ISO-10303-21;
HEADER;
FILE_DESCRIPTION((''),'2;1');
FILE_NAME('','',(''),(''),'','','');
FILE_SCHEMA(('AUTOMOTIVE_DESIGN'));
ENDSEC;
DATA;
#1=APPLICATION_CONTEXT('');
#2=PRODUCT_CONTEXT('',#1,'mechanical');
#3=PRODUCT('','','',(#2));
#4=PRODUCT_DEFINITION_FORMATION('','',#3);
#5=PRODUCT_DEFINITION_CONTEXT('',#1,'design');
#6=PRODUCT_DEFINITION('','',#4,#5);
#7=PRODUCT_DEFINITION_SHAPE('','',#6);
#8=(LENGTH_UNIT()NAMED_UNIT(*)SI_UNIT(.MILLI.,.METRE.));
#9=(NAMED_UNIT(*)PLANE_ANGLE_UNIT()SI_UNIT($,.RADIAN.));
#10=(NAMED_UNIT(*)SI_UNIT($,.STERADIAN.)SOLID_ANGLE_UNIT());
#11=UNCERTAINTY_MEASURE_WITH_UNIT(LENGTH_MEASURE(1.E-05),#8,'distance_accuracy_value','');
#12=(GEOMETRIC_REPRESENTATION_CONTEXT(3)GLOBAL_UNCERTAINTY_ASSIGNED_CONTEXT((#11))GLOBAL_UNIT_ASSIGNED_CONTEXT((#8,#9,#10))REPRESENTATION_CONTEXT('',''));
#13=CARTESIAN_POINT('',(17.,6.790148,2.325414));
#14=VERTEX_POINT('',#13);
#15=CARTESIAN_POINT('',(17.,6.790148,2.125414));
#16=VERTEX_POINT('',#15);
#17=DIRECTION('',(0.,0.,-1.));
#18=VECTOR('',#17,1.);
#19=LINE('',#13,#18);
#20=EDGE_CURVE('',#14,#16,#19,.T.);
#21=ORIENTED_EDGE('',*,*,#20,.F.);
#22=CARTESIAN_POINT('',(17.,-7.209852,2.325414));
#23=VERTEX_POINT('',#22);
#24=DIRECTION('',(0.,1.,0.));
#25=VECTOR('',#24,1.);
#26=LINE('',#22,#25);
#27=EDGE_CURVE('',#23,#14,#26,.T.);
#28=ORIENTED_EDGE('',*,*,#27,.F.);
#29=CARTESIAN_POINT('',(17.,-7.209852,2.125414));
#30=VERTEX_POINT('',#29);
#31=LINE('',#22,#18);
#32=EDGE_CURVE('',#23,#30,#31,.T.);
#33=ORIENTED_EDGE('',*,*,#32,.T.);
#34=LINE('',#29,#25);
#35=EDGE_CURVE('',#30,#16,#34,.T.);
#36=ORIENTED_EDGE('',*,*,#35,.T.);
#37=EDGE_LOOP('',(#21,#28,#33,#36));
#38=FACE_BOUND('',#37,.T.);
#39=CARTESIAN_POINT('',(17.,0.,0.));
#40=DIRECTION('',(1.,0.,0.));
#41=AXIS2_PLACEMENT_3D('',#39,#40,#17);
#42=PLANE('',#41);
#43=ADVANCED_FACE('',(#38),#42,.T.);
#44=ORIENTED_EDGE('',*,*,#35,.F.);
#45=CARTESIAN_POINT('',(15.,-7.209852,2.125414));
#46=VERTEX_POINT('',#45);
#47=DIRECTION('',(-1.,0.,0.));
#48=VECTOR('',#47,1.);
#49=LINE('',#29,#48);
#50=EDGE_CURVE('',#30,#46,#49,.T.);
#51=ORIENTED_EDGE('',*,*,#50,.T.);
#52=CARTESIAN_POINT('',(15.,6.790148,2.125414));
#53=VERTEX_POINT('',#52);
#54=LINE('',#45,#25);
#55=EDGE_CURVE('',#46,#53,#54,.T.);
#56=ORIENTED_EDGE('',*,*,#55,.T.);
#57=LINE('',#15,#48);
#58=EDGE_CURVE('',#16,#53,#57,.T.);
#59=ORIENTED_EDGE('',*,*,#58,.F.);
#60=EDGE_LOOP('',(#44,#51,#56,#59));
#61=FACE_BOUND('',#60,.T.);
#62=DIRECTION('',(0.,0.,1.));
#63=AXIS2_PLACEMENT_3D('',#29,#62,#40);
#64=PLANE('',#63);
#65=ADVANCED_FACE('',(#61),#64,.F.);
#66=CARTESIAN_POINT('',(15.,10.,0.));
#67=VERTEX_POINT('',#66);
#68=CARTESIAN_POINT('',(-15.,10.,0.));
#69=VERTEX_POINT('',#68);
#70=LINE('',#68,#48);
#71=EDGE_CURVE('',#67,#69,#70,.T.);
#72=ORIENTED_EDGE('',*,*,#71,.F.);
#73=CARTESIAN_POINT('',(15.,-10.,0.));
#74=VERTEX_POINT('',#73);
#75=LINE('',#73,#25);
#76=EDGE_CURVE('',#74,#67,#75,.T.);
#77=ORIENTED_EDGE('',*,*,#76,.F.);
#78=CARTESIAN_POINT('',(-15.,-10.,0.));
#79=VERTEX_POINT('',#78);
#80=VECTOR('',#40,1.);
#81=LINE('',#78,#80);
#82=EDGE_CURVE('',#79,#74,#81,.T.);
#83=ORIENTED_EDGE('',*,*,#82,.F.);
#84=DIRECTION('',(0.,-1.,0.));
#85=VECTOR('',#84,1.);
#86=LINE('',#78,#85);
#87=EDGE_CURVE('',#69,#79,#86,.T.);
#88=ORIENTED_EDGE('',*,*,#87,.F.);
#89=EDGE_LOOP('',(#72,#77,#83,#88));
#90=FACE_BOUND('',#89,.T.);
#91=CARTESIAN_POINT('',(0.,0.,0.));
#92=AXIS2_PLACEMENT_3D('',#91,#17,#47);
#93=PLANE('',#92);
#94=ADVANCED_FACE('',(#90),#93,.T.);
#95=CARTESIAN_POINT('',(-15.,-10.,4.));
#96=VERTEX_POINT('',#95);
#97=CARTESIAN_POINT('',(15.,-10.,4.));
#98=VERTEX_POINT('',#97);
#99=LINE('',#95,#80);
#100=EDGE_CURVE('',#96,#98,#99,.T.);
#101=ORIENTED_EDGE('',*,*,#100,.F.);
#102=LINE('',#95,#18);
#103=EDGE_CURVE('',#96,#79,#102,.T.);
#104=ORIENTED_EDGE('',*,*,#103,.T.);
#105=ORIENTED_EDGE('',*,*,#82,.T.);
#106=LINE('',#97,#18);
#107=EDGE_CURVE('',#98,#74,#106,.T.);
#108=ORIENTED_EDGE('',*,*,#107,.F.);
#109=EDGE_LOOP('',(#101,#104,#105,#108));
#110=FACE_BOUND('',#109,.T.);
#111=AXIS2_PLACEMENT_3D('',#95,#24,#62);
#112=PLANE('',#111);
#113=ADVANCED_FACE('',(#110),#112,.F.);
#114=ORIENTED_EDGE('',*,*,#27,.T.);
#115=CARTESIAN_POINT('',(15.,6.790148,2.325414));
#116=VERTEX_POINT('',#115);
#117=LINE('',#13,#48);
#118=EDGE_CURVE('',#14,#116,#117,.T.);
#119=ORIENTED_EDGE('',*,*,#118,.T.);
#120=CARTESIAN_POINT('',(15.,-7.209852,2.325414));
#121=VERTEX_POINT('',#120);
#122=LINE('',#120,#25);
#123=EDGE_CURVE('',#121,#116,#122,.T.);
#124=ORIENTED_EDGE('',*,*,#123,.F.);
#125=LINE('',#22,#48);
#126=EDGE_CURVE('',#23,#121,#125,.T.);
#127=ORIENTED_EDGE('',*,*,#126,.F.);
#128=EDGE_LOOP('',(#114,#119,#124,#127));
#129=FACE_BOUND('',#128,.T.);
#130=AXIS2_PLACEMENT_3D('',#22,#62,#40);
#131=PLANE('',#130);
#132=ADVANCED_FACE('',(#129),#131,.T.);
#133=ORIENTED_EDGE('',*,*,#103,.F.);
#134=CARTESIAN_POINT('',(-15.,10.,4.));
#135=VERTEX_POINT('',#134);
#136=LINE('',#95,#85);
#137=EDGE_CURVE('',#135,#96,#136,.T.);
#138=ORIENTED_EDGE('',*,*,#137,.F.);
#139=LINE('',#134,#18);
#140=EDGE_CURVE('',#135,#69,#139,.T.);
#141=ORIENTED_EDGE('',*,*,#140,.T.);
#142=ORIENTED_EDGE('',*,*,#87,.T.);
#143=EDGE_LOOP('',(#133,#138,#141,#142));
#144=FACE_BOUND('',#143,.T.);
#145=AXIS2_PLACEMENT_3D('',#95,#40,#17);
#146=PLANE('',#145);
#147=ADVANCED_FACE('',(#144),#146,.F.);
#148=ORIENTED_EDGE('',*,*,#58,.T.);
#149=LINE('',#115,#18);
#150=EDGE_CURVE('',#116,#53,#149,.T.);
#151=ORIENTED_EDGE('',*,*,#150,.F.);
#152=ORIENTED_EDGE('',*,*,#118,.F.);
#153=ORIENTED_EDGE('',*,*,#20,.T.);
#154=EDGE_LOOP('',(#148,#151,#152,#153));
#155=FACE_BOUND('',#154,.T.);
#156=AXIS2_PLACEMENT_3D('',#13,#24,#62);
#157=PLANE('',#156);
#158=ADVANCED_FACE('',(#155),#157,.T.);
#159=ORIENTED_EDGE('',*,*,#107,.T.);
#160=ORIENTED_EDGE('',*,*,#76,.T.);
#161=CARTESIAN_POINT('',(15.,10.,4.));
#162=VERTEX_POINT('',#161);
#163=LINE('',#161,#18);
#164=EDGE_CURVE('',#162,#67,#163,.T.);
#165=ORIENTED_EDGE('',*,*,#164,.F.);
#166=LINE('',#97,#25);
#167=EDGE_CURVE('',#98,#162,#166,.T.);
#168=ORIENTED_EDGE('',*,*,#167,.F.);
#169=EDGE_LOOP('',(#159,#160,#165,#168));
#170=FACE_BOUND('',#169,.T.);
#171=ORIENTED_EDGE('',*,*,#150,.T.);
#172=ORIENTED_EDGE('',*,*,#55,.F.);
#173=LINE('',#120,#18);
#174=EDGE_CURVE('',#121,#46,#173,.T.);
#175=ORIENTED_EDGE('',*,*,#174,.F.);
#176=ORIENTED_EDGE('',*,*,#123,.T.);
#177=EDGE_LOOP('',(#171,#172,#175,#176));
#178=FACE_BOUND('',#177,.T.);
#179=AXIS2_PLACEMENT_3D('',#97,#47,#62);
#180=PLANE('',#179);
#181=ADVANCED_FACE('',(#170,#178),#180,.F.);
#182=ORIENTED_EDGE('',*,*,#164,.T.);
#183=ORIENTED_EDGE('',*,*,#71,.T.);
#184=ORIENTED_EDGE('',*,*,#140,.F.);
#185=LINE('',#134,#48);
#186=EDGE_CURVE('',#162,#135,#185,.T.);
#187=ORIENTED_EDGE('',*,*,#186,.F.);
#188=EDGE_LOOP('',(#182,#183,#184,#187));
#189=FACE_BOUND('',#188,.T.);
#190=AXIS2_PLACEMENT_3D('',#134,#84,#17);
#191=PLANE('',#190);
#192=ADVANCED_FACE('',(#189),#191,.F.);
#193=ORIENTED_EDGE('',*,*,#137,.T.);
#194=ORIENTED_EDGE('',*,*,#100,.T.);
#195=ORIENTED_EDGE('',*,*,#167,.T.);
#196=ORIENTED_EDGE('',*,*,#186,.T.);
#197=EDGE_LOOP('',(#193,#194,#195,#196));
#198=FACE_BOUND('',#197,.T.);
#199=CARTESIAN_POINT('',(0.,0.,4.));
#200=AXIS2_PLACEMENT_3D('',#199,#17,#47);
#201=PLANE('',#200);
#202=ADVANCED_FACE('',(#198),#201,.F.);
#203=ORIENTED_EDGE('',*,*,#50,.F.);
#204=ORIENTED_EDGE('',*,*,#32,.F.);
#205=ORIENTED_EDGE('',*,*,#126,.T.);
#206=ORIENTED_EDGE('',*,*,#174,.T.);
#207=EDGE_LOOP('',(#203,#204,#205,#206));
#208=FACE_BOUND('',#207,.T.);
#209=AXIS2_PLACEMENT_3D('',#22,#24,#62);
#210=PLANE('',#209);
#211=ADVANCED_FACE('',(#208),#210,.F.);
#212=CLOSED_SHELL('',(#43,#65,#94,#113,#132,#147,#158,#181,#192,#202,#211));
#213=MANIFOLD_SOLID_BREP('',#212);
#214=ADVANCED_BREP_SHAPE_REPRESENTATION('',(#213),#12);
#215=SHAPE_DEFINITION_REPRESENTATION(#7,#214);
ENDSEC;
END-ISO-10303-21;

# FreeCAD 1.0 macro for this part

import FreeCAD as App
import Part
import Sketcher

V = App.Vector


def add_polygon(sketch, points):
    """Adds a closed chain of lines whose ends are joined by coincident constraints."""
    first, n = sketch.GeometryCount, len(points)
    for a, b in zip(points, points[1:] + points[:1]):
        sketch.addGeometry(Part.LineSegment(App.Vector(*a, 0), App.Vector(*b, 0)), False)
    for i in range(n):
        sketch.addConstraint(Sketcher.Constraint("Coincident", first + i, 2, first + (i + 1) % n, 1))

doc = App.newDocument("Part")
body = doc.addObject("PartDesign::Body", "Body")

# Sketch on XY plane
sketch1 = body.newObject("Sketcher::SketchObject", "Sketch")
sketch1.AttachmentSupport = (doc.getObject("XY_Plane"), [""])
sketch1.MapMode = "FlatFace"
add_polygon(sketch1, [(-15, 10), (-15, -10), (15, -10), (15, 10)])  # lines 0-3
sketch1.addConstraint([
    Sketcher.Constraint("Vertical", 0),
    Sketcher.Constraint("Horizontal", 1),
    Sketcher.Constraint("Vertical", 2),
    Sketcher.Constraint("Horizontal", 3),
    Sketcher.Constraint("Symmetric", 0, 2, 2, 2, -1, 1),
    Sketcher.Constraint("DistanceX", 1, 1, 1, 2, 30.0),
    Sketcher.Constraint("DistanceY", 0, 2, 0, 1, 20.0),
])
pad1 = body.newObject("PartDesign::Pad", "Pad")
pad1.Profile = sketch1
pad1.Length = 4

# Sketch on YZ plane
sketch2 = body.newObject("Sketcher::SketchObject", "Sketch001")
sketch2.AttachmentSupport = (doc.getObject("YZ_Plane"), [""])
sketch2.MapMode = "FlatFace"
sketch2.AttachmentOffset = App.Placement(V(0, 0, 15), App.Rotation())
add_polygon(sketch2, [(6.79, 2.33), (-7.21, 2.33), (-7.21, 2.13), (6.79, 2.13)])  # lines 0-3
sketch2.addConstraint([
    Sketcher.Constraint("Horizontal", 0),
    Sketcher.Constraint("Vertical", 1),
    Sketcher.Constraint("Horizontal", 2),
    Sketcher.Constraint("Vertical", 3),
    Sketcher.Constraint("DistanceX", 0, 2, 0, 1, 14.0),
    Sketcher.Constraint("DistanceY", 1, 2, 1, 1, 0.2),
    Sketcher.Constraint("DistanceX", 0, 2, -1, 1, 7.209852),
    Sketcher.Constraint("DistanceY", -1, 1, 0, 2, 2.325414),
])
pad2 = body.newObject("PartDesign::Pad", "Pad001")
pad2.Profile = sketch2
pad2.Length = 2

doc.recompute()
